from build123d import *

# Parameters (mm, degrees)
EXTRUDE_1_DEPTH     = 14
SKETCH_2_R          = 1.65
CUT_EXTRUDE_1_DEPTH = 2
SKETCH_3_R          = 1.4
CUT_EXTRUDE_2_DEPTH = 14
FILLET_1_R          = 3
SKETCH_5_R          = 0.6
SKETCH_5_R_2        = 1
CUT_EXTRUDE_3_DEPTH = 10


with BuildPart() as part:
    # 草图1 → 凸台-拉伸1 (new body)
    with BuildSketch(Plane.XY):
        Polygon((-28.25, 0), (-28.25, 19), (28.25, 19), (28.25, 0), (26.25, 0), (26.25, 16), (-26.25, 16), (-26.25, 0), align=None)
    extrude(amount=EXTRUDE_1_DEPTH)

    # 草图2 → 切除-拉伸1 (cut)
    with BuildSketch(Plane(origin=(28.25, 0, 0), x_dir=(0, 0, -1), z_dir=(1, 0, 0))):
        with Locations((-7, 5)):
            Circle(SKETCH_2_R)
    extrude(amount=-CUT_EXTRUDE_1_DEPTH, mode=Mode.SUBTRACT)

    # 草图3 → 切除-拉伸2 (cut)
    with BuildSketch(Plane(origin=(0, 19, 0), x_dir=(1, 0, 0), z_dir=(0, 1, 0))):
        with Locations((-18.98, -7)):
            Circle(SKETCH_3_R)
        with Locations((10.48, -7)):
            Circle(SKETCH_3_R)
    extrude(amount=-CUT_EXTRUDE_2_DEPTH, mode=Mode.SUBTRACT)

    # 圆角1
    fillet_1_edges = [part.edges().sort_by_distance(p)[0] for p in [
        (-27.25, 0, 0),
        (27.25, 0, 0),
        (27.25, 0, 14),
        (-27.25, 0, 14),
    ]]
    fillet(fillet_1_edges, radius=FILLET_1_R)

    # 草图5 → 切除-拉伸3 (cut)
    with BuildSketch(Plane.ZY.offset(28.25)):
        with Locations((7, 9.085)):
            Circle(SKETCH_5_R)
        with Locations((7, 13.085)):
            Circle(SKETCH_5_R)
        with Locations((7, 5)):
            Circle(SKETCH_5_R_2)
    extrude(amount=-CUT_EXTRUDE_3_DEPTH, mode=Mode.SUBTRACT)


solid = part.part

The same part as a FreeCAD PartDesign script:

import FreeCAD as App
import Part
import Sketcher

V = App.Vector
Q = App.Units.Quantity


def edges_at(feature, points):
    """Names of the edges that pass closest to the given points."""
    edges = feature.Shape.Edges
    near = lambda p: min(range(len(edges)), key=lambda i: edges[i].distToShape(Part.Vertex(*p))[0])
    return sorted({f"Edge{near(p) + 1}" for p in points})

doc = App.newDocument("Part")
body = doc.addObject("PartDesign::Body", "Body")

# Sketch on XY plane
sketch1 = body.newObject("Sketcher::SketchObject", "Sketch")
sketch1.AttachmentSupport = (doc.getObject("XY_Plane"), [""])
sketch1.MapMode = "FlatFace"
sketch1.addGeometry(Part.LineSegment(V(-28.2, 19, 0), V(-28.2, 0, 0)), False)
sketch1.addGeometry(Part.LineSegment(V(-28.2, 0, 0), V(-26.2, 0, 0)), False)
sketch1.addGeometry(Part.LineSegment(V(-26.2, 0, 0), V(-26.2, 16, 0)), False)
sketch1.addGeometry(Part.LineSegment(V(-26.2, 16, 0), V(26.2, 16, 0)), False)
sketch1.addGeometry(Part.LineSegment(V(26.2, 16, 0), V(26.2, 0, 0)), False)
sketch1.addGeometry(Part.LineSegment(V(26.2, 0, 0), V(28.2, 0, 0)), False)
sketch1.addGeometry(Part.LineSegment(V(28.2, 0, 0), V(28.2, 19, 0)), False)
sketch1.addGeometry(Part.LineSegment(V(28.2, 19, 0), V(-28.2, 19, 0)), False)
sketch1.addConstraint(Sketcher.Constraint("Coincident", 0, 2, 1, 1))
sketch1.addConstraint(Sketcher.Constraint("Coincident", 1, 2, 2, 1))
sketch1.addConstraint(Sketcher.Constraint("Coincident", 2, 2, 3, 1))
sketch1.addConstraint(Sketcher.Constraint("Coincident", 3, 2, 4, 1))
sketch1.addConstraint(Sketcher.Constraint("Coincident", 4, 2, 5, 1))
sketch1.addConstraint(Sketcher.Constraint("Coincident", 5, 2, 6, 1))
sketch1.addConstraint(Sketcher.Constraint("Coincident", 6, 2, 7, 1))
sketch1.addConstraint(Sketcher.Constraint("Coincident", 7, 2, 0, 1))
sketch1.addConstraint(Sketcher.Constraint("Vertical", 0))
sketch1.addConstraint(Sketcher.Constraint("Horizontal", 1))
sketch1.addConstraint(Sketcher.Constraint("Vertical", 2))
sketch1.addConstraint(Sketcher.Constraint("Horizontal", 3))
sketch1.addConstraint(Sketcher.Constraint("Vertical", 4))
sketch1.addConstraint(Sketcher.Constraint("Horizontal", 5))
sketch1.addConstraint(Sketcher.Constraint("Vertical", 6))
sketch1.addConstraint(Sketcher.Constraint("Horizontal", 7))
sketch1.addConstraint(Sketcher.Constraint("Symmetric", 1, 2, 4, 2, -1, 1))
sketch1.addConstraint(Sketcher.Constraint("Symmetric", 0, 2, 5, 2, -2))
sketch1.addConstraint(Sketcher.Constraint("DistanceX", 1, 1, 1, 2, Q("2 mm")))
sketch1.addConstraint(Sketcher.Constraint("DistanceY", 0, 2, 0, 1, Q("19 mm")))
sketch1.addConstraint(Sketcher.Constraint("DistanceY", 2, 1, 2, 2, Q("16 mm")))
sketch1.addConstraint(Sketcher.Constraint("DistanceX", 3, 1, 3, 2, Q("52.5 mm")))
pad1 = body.newObject("PartDesign::Pad", "Pad")
pad1.Profile = sketch1
pad1.Length = 14

# Sketch on YZ plane
sketch2 = body.newObject("Sketcher::SketchObject", "Sketch001")
sketch2.AttachmentSupport = (doc.getObject("YZ_Plane"), [""])
sketch2.MapMode = "FlatFace"
sketch2.AttachmentOffset = App.Placement(V(0, 0, 28.25), App.Rotation())
sketch2.addGeometry(Part.Circle(V(5, 7, 0), V(0, 0, 1), 1.6), False)
sketch2.addConstraint(Sketcher.Constraint("Diameter", 0, Q("3.3 mm")))
sketch2.addConstraint(Sketcher.Constraint("DistanceX", -1, 1, 0, 3, Q("5 mm")))
sketch2.addConstraint(Sketcher.Constraint("DistanceY", -1, 1, 0, 3, Q("7 mm")))
pocket1 = body.newObject("PartDesign::Pocket", "Pocket")
pocket1.Profile = sketch2
pocket1.Length = 2

# Sketch on XZ plane
sketch3 = body.newObject("Sketcher::SketchObject", "Sketch002")
sketch3.AttachmentSupport = (doc.getObject("XZ_Plane"), [""])
sketch3.MapMode = "FlatFace"
sketch3.AttachmentOffset = App.Placement(V(0, 0, -19), App.Rotation())
sketch3.addGeometry(Part.Circle(V(-19, 7, 0), V(0, 0, 1), 1.4), False)
sketch3.addGeometry(Part.Circle(V(10.5, 7, 0), V(0, 0, 1), 1.4), False)
sketch3.addConstraint(Sketcher.Constraint("Equal", 0, 1))
sketch3.addConstraint(Sketcher.Constraint("Horizontal", 0, 3, 1, 3))
sketch3.addConstraint(Sketcher.Constraint("Diameter", 0, Q("2.8 mm")))
sketch3.addConstraint(Sketcher.Constraint("DistanceY", -1, 1, 0, 3, Q("7 mm")))
sketch3.addConstraint(Sketcher.Constraint("DistanceX", 0, 3, -1, 1, Q("18.98 mm")))
sketch3.addConstraint(Sketcher.Constraint("DistanceX", -1, 1, 1, 3, Q("10.48 mm")))
pocket2 = body.newObject("PartDesign::Pocket", "Pocket001")
pocket2.Profile = sketch3
pocket2.Length = 14
pocket2.Reversed = True
doc.recompute()

fillet = body.newObject("PartDesign::Fillet", "Fillet")
fillet.Base = (pocket2, edges_at(pocket2, [
    (-27.25, 0, 0),
    (27.25, 0, 0),
    (27.25, 0, 14),
    (-27.25, 0, 14),
]))
fillet.Radius = 3

# Sketch on YZ plane
sketch4 = body.newObject("Sketcher::SketchObject", "Sketch003")
sketch4.AttachmentSupport = (doc.getObject("YZ_Plane"), [""])
sketch4.MapMode = "FlatFace"
sketch4.AttachmentOffset = App.Placement(V(0, 0, -28.25), App.Rotation())
sketch4.addGeometry(Part.Circle(V(9.1, 7, 0), V(0, 0, 1), 0.6), False)
sketch4.addGeometry(Part.Circle(V(13.1, 7, 0), V(0, 0, 1), 0.6), False)
sketch4.addGeometry(Part.Circle(V(5, 7, 0), V(0, 0, 1), 1), False)
sketch4.addConstraint(Sketcher.Constraint("Equal", 0, 1))
sketch4.addConstraint(Sketcher.Constraint("Horizontal", 0, 3, 1, 3))
sketch4.addConstraint(Sketcher.Constraint("Horizontal", 1, 3, 2, 3))
sketch4.addConstraint(Sketcher.Constraint("Diameter", 2, Q("2 mm")))
sketch4.addConstraint(Sketcher.Constraint("Diameter", 0, Q("1.2 mm")))
sketch4.addConstraint(Sketcher.Constraint("DistanceY", -1, 1, 0, 3, Q("7 mm")))
sketch4.addConstraint(Sketcher.Constraint("DistanceX", -1, 1, 2, 3, Q("5 mm")))
sketch4.addConstraint(Sketcher.Constraint("DistanceX", 0, 3, 1, 3, Q("4 mm")))
sketch4.addConstraint(Sketcher.Constraint("DistanceX", -1, 1, 0, 3, Q("9.085 mm")))
pocket3 = body.newObject("PartDesign::Pocket", "Pocket002")
pocket3.Profile = sketch4
pocket3.Length = 10
pocket3.Reversed = True

doc.recompute()
